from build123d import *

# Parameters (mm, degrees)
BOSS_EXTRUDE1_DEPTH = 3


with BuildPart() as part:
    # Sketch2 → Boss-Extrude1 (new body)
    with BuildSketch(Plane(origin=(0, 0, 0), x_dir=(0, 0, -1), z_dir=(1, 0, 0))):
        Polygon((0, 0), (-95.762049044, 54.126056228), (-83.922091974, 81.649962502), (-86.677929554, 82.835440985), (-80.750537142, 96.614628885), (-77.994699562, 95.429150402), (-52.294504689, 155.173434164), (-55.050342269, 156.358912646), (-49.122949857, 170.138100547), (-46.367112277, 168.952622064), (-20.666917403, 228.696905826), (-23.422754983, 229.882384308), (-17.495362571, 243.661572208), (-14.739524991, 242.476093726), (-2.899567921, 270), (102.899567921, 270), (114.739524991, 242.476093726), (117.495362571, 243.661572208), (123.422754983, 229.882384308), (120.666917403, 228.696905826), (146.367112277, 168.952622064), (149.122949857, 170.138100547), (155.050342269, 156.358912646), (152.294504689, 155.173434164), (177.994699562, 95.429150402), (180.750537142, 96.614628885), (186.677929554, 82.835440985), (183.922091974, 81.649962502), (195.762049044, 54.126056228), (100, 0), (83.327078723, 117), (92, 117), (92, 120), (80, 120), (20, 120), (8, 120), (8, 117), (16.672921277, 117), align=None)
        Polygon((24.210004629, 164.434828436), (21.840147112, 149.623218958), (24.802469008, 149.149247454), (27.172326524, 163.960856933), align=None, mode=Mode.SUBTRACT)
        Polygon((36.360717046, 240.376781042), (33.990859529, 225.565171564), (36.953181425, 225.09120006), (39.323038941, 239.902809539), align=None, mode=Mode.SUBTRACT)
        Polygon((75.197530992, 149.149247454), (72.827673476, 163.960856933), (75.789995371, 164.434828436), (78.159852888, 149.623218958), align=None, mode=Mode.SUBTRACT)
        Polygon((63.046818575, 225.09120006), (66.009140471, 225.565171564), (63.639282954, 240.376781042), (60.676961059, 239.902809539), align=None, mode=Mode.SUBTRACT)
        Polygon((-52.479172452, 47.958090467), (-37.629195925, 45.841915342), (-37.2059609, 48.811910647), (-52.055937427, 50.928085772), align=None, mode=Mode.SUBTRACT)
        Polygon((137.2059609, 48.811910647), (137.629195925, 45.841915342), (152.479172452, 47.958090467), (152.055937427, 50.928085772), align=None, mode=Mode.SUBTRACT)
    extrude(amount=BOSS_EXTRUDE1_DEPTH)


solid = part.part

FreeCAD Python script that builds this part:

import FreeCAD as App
import Part
import Sketcher
from FreeCAD import Vector
Q = App.Units.Quantity

doc = App.newDocument("Part")
body = doc.addObject("PartDesign::Body", "Body")

sketch1 = doc.addObject("Sketcher::SketchObject", "Sketch")
body.addObject(sketch1)
sketch1.AttachmentSupport = (doc.YZ_Plane, [""])
sketch1.MapMode = "FlatFace"
sketch1.addGeometry(Part.LineSegment(Vector(54.1, 95.8, 0), Vector(0, 0, 0)), False)
sketch1.addGeometry(Part.LineSegment(Vector(0, 0, 0), Vector(117, -16.7, 0)), False)
sketch1.addGeometry(Part.LineSegment(Vector(117, -16.7, 0), Vector(117, -8, 0)), False)
sketch1.addGeometry(Part.LineSegment(Vector(117, -8, 0), Vector(120, -8, 0)), False)
sketch1.addGeometry(Part.LineSegment(Vector(120, -8, 0), Vector(120, -92, 0)), False)
sketch1.addGeometry(Part.LineSegment(Vector(120, -92, 0), Vector(117, -92, 0)), False)
sketch1.addGeometry(Part.LineSegment(Vector(117, -92, 0), Vector(117, -83.3, 0)), False)
sketch1.addGeometry(Part.LineSegment(Vector(117, -83.3, 0), Vector(0, -100, 0)), False)
sketch1.addGeometry(Part.LineSegment(Vector(0, -100, 0), Vector(54.1, -195.8, 0)), False)
sketch1.addGeometry(Part.LineSegment(Vector(54.1, -195.8, 0), Vector(81.6, -183.9, 0)), False)
sketch1.addGeometry(Part.LineSegment(Vector(81.6, -183.9, 0), Vector(82.8, -186.7, 0)), False)
sketch1.addGeometry(Part.LineSegment(Vector(82.8, -186.7, 0), Vector(96.6, -180.8, 0)), False)
sketch1.addGeometry(Part.LineSegment(Vector(96.6, -180.8, 0), Vector(95.4, -178, 0)), False)
sketch1.addGeometry(Part.LineSegment(Vector(95.4, -178, 0), Vector(155.2, -152.3, 0)), False)
sketch1.addGeometry(Part.LineSegment(Vector(155.2, -152.3, 0), Vector(156.4, -155.1, 0)), False)
sketch1.addGeometry(Part.LineSegment(Vector(156.4, -155.1, 0), Vector(170.1, -149.1, 0)), False)
sketch1.addGeometry(Part.LineSegment(Vector(170.1, -149.1, 0), Vector(169, -146.4, 0)), False)
sketch1.addGeometry(Part.LineSegment(Vector(169, -146.4, 0), Vector(228.7, -120.7, 0)), False)
sketch1.addGeometry(Part.LineSegment(Vector(228.7, -120.7, 0), Vector(229.9, -123.4, 0)), False)
sketch1.addGeometry(Part.LineSegment(Vector(229.9, -123.4, 0), Vector(243.7, -117.5, 0)), False)
sketch1.addGeometry(Part.LineSegment(Vector(243.7, -117.5, 0), Vector(242.5, -114.7, 0)), False)
sketch1.addGeometry(Part.LineSegment(Vector(242.5, -114.7, 0), Vector(270, -102.9, 0)), False)
sketch1.addGeometry(Part.LineSegment(Vector(270, -102.9, 0), Vector(270, 2.9, 0)), False)
sketch1.addGeometry(Part.LineSegment(Vector(270, 2.9, 0), Vector(242.5, 14.7, 0)), False)
sketch1.addGeometry(Part.LineSegment(Vector(242.5, 14.7, 0), Vector(243.7, 17.5, 0)), False)
sketch1.addGeometry(Part.LineSegment(Vector(243.7, 17.5, 0), Vector(229.9, 23.4, 0)), False)
sketch1.addGeometry(Part.LineSegment(Vector(229.9, 23.4, 0), Vector(228.7, 20.7, 0)), False)
sketch1.addGeometry(Part.LineSegment(Vector(228.7, 20.7, 0), Vector(169, 46.4, 0)), False)
sketch1.addGeometry(Part.LineSegment(Vector(169, 46.4, 0), Vector(170.1, 49.1, 0)), False)
sketch1.addGeometry(Part.LineSegment(Vector(170.1, 49.1, 0), Vector(156.4, 55.1, 0)), False)
sketch1.addGeometry(Part.LineSegment(Vector(156.4, 55.1, 0), Vector(155.2, 52.3, 0)), False)
sketch1.addGeometry(Part.LineSegment(Vector(155.2, 52.3, 0), Vector(95.4, 78, 0)), False)
sketch1.addGeometry(Part.LineSegment(Vector(95.4, 78, 0), Vector(96.6, 80.8, 0)), False)
sketch1.addGeometry(Part.LineSegment(Vector(96.6, 80.8, 0), Vector(82.8, 86.7, 0)), False)
sketch1.addGeometry(Part.LineSegment(Vector(82.8, 86.7, 0), Vector(81.6, 83.9, 0)), False)
sketch1.addGeometry(Part.LineSegment(Vector(81.6, 83.9, 0), Vector(54.1, 95.8, 0)), False)
sketch1.addGeometry(Part.LineSegment(Vector(48.8, -137.2, 0), Vector(50.9, -152.1, 0)), False)
sketch1.addGeometry(Part.LineSegment(Vector(50.9, -152.1, 0), Vector(48, -152.5, 0)), False)
sketch1.addGeometry(Part.LineSegment(Vector(48, -152.5, 0), Vector(45.8, -137.6, 0)), False)
sketch1.addGeometry(Part.LineSegment(Vector(45.8, -137.6, 0), Vector(48.8, -137.2, 0)), False)
sketch1.addGeometry(Part.LineSegment(Vector(48, 52.5, 0), Vector(50.9, 52.1, 0)), False)
sketch1.addGeometry(Part.LineSegment(Vector(50.9, 52.1, 0), Vector(48.8, 37.2, 0)), False)
sketch1.addGeometry(Part.LineSegment(Vector(48.8, 37.2, 0), Vector(45.8, 37.6, 0)), False)
sketch1.addGeometry(Part.LineSegment(Vector(45.8, 37.6, 0), Vector(48, 52.5, 0)), False)
sketch1.addGeometry(Part.LineSegment(Vector(149.1, -75.2, 0), Vector(164, -72.8, 0)), False)
sketch1.addGeometry(Part.LineSegment(Vector(164, -72.8, 0), Vector(164.4, -75.8, 0)), False)
sketch1.addGeometry(Part.LineSegment(Vector(164.4, -75.8, 0), Vector(149.6, -78.2, 0)), False)
sketch1.addGeometry(Part.LineSegment(Vector(149.6, -78.2, 0), Vector(149.1, -75.2, 0)), False)
sketch1.addGeometry(Part.LineSegment(Vector(225.1, -63, 0), Vector(239.9, -60.7, 0)), False)
sketch1.addGeometry(Part.LineSegment(Vector(239.9, -60.7, 0), Vector(240.4, -63.6, 0)), False)
sketch1.addGeometry(Part.LineSegment(Vector(240.4, -63.6, 0), Vector(225.6, -66, 0)), False)
sketch1.addGeometry(Part.LineSegment(Vector(225.6, -66, 0), Vector(225.1, -63, 0)), False)
sketch1.addGeometry(Part.LineSegment(Vector(164.4, -24.2, 0), Vector(164, -27.2, 0)), False)
sketch1.addGeometry(Part.LineSegment(Vector(164, -27.2, 0), Vector(149.1, -24.8, 0)), False)
sketch1.addGeometry(Part.LineSegment(Vector(149.1, -24.8, 0), Vector(149.6, -21.8, 0)), False)
sketch1.addGeometry(Part.LineSegment(Vector(149.6, -21.8, 0), Vector(164.4, -24.2, 0)), False)
sketch1.addGeometry(Part.LineSegment(Vector(240.4, -36.4, 0), Vector(239.9, -39.3, 0)), False)
sketch1.addGeometry(Part.LineSegment(Vector(239.9, -39.3, 0), Vector(225.1, -37, 0)), False)
sketch1.addGeometry(Part.LineSegment(Vector(225.1, -37, 0), Vector(225.6, -34, 0)), False)
sketch1.addGeometry(Part.LineSegment(Vector(225.6, -34, 0), Vector(240.4, -36.4, 0)), False)
sketch1.addConstraint(Sketcher.Constraint("Coincident", 0, 2, 1, 1))
sketch1.addConstraint(Sketcher.Constraint("Coincident", 1, 2, 2, 1))
sketch1.addConstraint(Sketcher.Constraint("Coincident", 2, 2, 3, 1))
sketch1.addConstraint(Sketcher.Constraint("Coincident", 3, 2, 4, 1))
sketch1.addConstraint(Sketcher.Constraint("Coincident", 4, 2, 5, 1))
sketch1.addConstraint(Sketcher.Constraint("Coincident", 5, 2, 6, 1))
sketch1.addConstraint(Sketcher.Constraint("Coincident", 6, 2, 7, 1))
sketch1.addConstraint(Sketcher.Constraint("Coincident", 7, 2, 8, 1))
sketch1.addConstraint(Sketcher.Constraint("Coincident", 8, 2, 9, 1))
sketch1.addConstraint(Sketcher.Constraint("Coincident", 9, 2, 10, 1))
sketch1.addConstraint(Sketcher.Constraint("Coincident", 10, 2, 11, 1))
sketch1.addConstraint(Sketcher.Constraint("Coincident", 11, 2, 12, 1))
sketch1.addConstraint(Sketcher.Constraint("Coincident", 12, 2, 13, 1))
sketch1.addConstraint(Sketcher.Constraint("Coincident", 13, 2, 14, 1))
sketch1.addConstraint(Sketcher.Constraint("Coincident", 14, 2, 15, 1))
sketch1.addConstraint(Sketcher.Constraint("Coincident", 15, 2, 16, 1))
sketch1.addConstraint(Sketcher.Constraint("Coincident", 16, 2, 17, 1))
sketch1.addConstraint(Sketcher.Constraint("Coincident", 17, 2, 18, 1))
sketch1.addConstraint(Sketcher.Constraint("Coincident", 18, 2, 19, 1))
sketch1.addConstraint(Sketcher.Constraint("Coincident", 19, 2, 20, 1))
sketch1.addConstraint(Sketcher.Constraint("Coincident", 20, 2, 21, 1))
sketch1.addConstraint(Sketcher.Constraint("Coincident", 21, 2, 22, 1))
sketch1.addConstraint(Sketcher.Constraint("Coincident", 22, 2, 23, 1))
sketch1.addConstraint(Sketcher.Constraint("Coincident", 23, 2, 24, 1))
sketch1.addConstraint(Sketcher.Constraint("Coincident", 24, 2, 25, 1))
sketch1.addConstraint(Sketcher.Constraint("Coincident", 25, 2, 26, 1))
sketch1.addConstraint(Sketcher.Constraint("Coincident", 26, 2, 27, 1))
sketch1.addConstraint(Sketcher.Constraint("Coincident", 27, 2, 28, 1))
sketch1.addConstraint(Sketcher.Constraint("Coincident", 28, 2, 29, 1))
sketch1.addConstraint(Sketcher.Constraint("Coincident", 29, 2, 30, 1))
sketch1.addConstraint(Sketcher.Constraint("Coincident", 30, 2, 31, 1))
sketch1.addConstraint(Sketcher.Constraint("Coincident", 31, 2, 32, 1))
sketch1.addConstraint(Sketcher.Constraint("Coincident", 32, 2, 33, 1))
sketch1.addConstraint(Sketcher.Constraint("Coincident", 33, 2, 34, 1))
sketch1.addConstraint(Sketcher.Constraint("Coincident", 34, 2, 35, 1))
sketch1.addConstraint(Sketcher.Constraint("Coincident", 35, 2, 0, 1))
sketch1.addConstraint(Sketcher.Constraint("Coincident", 36, 2, 37, 1))
sketch1.addConstraint(Sketcher.Constraint("Coincident", 37, 2, 38, 1))
sketch1.addConstraint(Sketcher.Constraint("Coincident", 38, 2, 39, 1))
sketch1.addConstraint(Sketcher.Constraint("Coincident", 39, 2, 36, 1))
sketch1.addConstraint(Sketcher.Constraint("Coincident", 40, 2, 41, 1))
sketch1.addConstraint(Sketcher.Constraint("Coincident", 41, 2, 42, 1))
sketch1.addConstraint(Sketcher.Constraint("Coincident", 42, 2, 43, 1))
sketch1.addConstraint(Sketcher.Constraint("Coincident", 43, 2, 40, 1))
sketch1.addConstraint(Sketcher.Constraint("Coincident", 44, 2, 45, 1))
sketch1.addConstraint(Sketcher.Constraint("Coincident", 45, 2, 46, 1))
sketch1.addConstraint(Sketcher.Constraint("Coincident", 46, 2, 47, 1))
sketch1.addConstraint(Sketcher.Constraint("Coincident", 47, 2, 44, 1))
sketch1.addConstraint(Sketcher.Constraint("Coincident", 48, 2, 49, 1))
sketch1.addConstraint(Sketcher.Constraint("Coincident", 49, 2, 50, 1))
sketch1.addConstraint(Sketcher.Constraint("Coincident", 50, 2, 51, 1))
sketch1.addConstraint(Sketcher.Constraint("Coincident", 51, 2, 48, 1))
sketch1.addConstraint(Sketcher.Constraint("Coincident", 52, 2, 53, 1))
sketch1.addConstraint(Sketcher.Constraint("Coincident", 53, 2, 54, 1))
sketch1.addConstraint(Sketcher.Constraint("Coincident", 54, 2, 55, 1))
sketch1.addConstraint(Sketcher.Constraint("Coincident", 55, 2, 52, 1))
sketch1.addConstraint(Sketcher.Constraint("Coincident", 56, 2, 57, 1))
sketch1.addConstraint(Sketcher.Constraint("Coincident", 57, 2, 58, 1))
sketch1.addConstraint(Sketcher.Constraint("Coincident", 58, 2, 59, 1))
sketch1.addConstraint(Sketcher.Constraint("Coincident", 59, 2, 56, 1))
sketch1.addConstraint(Sketcher.Constraint("Vertical", 2))
sketch1.addConstraint(Sketcher.Constraint("Horizontal", 3))
sketch1.addConstraint(Sketcher.Constraint("Vertical", 4))
sketch1.addConstraint(Sketcher.Constraint("Horizontal", 5))
sketch1.addConstraint(Sketcher.Constraint("Vertical", 6))
sketch1.addConstraint(Sketcher.Constraint("Vertical", 22))
sketch1.addConstraint(Sketcher.Constraint("Coincident", 0, 2, -1, 1))
sketch1.addConstraint(Sketcher.Constraint("PointOnObject", 7, 2, -2))
sketch1.addConstraint(Sketcher.Constraint("Perpendicular", 9, 10))
sketch1.addConstraint(Sketcher.Constraint("Perpendicular", 10, 11))
sketch1.addConstraint(Sketcher.Constraint("Perpendicular", 11, 12))
sketch1.addConstraint(Sketcher.Constraint("Perpendicular", 12, 13))
sketch1.addConstraint(Sketcher.Constraint("Perpendicular", 13, 14))
sketch1.addConstraint(Sketcher.Constraint("Perpendicular", 14, 15))
sketch1.addConstraint(Sketcher.Constraint("Perpendicular", 15, 16))
sketch1.addConstraint(Sketcher.Constraint("Perpendicular", 16, 17))
sketch1.addConstraint(Sketcher.Constraint("Perpendicular", 17, 18))
sketch1.addConstraint(Sketcher.Constraint("Perpendicular", 18, 19))
sketch1.addConstraint(Sketcher.Constraint("Perpendicular", 19, 20))
sketch1.addConstraint(Sketcher.Constraint("Perpendicular", 20, 21))
sketch1.addConstraint(Sketcher.Constraint("Perpendicular", 23, 24))
sketch1.addConstraint(Sketcher.Constraint("Perpendicular", 24, 25))
sketch1.addConstraint(Sketcher.Constraint("Perpendicular", 25, 26))
sketch1.addConstraint(Sketcher.Constraint("Perpendicular", 26, 27))
sketch1.addConstraint(Sketcher.Constraint("Perpendicular", 27, 28))
sketch1.addConstraint(Sketcher.Constraint("Perpendicular", 28, 29))
sketch1.addConstraint(Sketcher.Constraint("Perpendicular", 29, 30))
sketch1.addConstraint(Sketcher.Constraint("Perpendicular", 30, 31))
sketch1.addConstraint(Sketcher.Constraint("Perpendicular", 31, 32))
sketch1.addConstraint(Sketcher.Constraint("Perpendicular", 32, 33))
sketch1.addConstraint(Sketcher.Constraint("Perpendicular", 33, 34))
sketch1.addConstraint(Sketcher.Constraint("Perpendicular", 34, 35))
sketch1.addConstraint(Sketcher.Constraint("Perpendicular", 7, 36))
sketch1.addConstraint(Sketcher.Constraint("Perpendicular", 36, 37))
sketch1.addConstraint(Sketcher.Constraint("Perpendicular", 37, 38))
sketch1.addConstraint(Sketcher.Constraint("Perpendicular", 38, 39))
sketch1.addConstraint(Sketcher.Constraint("Parallel", 1, 40))
sketch1.addConstraint(Sketcher.Constraint("Perpendicular", 40, 41))
sketch1.addConstraint(Sketcher.Constraint("Perpendicular", 41, 42))
sketch1.addConstraint(Sketcher.Constraint("Perpendicular", 42, 43))
sketch1.addConstraint(Sketcher.Constraint("Perpendicular", 44, 45))
sketch1.addConstraint(Sketcher.Constraint("Perpendicular", 45, 46))
sketch1.addConstraint(Sketcher.Constraint("Perpendicular", 46, 47))
sketch1.addConstraint(Sketcher.Constraint("Perpendicular", 47, 48))
sketch1.addConstraint(Sketcher.Constraint("Perpendicular", 48, 49))
sketch1.addConstraint(Sketcher.Constraint("Perpendicular", 49, 50))
sketch1.addConstraint(Sketcher.Constraint("Perpendicular", 50, 51))
sketch1.addConstraint(Sketcher.Constraint("Perpendicular", 52, 53))
sketch1.addConstraint(Sketcher.Constraint("Perpendicular", 53, 54))
sketch1.addConstraint(Sketcher.Constraint("Perpendicular", 54, 55))
sketch1.addConstraint(Sketcher.Constraint("Perpendicular", 55, 56))
sketch1.addConstraint(Sketcher.Constraint("Perpendicular", 56, 57))
sketch1.addConstraint(Sketcher.Constraint("Perpendicular", 57, 58))
sketch1.addConstraint(Sketcher.Constraint("Perpendicular", 58, 59))
sketch1.addConstraint(Sketcher.Constraint("Vertical", 2, 2, 5, 2))
sketch1.addConstraint(Sketcher.Constraint("Vertical", 20, 2, 23, 2))
sketch1.addConstraint(Sketcher.Constraint("Vertical", 19, 2, 24, 2))
sketch1.addConstraint(Sketcher.Constraint("Vertical", 18, 2, 25, 2))
sketch1.addConstraint(Sketcher.Constraint("Vertical", 17, 2, 26, 2))
sketch1.addConstraint(Sketcher.Constraint("Vertical", 16, 2, 27, 2))
sketch1.addConstraint(Sketcher.Constraint("Vertical", 15, 2, 28, 2))
sketch1.addConstraint(Sketcher.Constraint("Vertical", 14, 2, 29, 2))
sketch1.addConstraint(Sketcher.Constraint("Vertical", 13, 2, 30, 2))
sketch1.addConstraint(Sketcher.Constraint("Vertical", 12, 2, 31, 2))
sketch1.addConstraint(Sketcher.Constraint("Vertical", 11, 2, 32, 2))
sketch1.addConstraint(Sketcher.Constraint("Vertical", 10, 2, 33, 2))
sketch1.addConstraint(Sketcher.Constraint("Vertical", 9, 2, 34, 2))
sketch1.addConstraint(Sketcher.Constraint("Vertical", 8, 2, 35, 2))
sketch1.addConstraint(Sketcher.Constraint("Vertical", 36, 2, 40, 2))
sketch1.addConstraint(Sketcher.Constraint("Vertical", 39, 2, 41, 2))
sketch1.addConstraint(Sketcher.Constraint("Vertical", 38, 2, 42, 2))
sketch1.addConstraint(Sketcher.Constraint("Vertical", 44, 2, 52, 2))
sketch1.addConstraint(Sketcher.Constraint("Vertical", 47, 2, 53, 2))
sketch1.addConstraint(Sketcher.Constraint("Vertical", 46, 2, 54, 2))
sketch1.addConstraint(Sketcher.Constraint("Vertical", 48, 2, 56, 2))
sketch1.addConstraint(Sketcher.Constraint("Vertical", 51, 2, 57, 2))
sketch1.addConstraint(Sketcher.Constraint("Vertical", 50, 2, 58, 2))
sketch1.addConstraint(Sketcher.Constraint("Equal", 2, 6))
sketch1.addConstraint(Sketcher.Constraint("Equal", 1, 7))
sketch1.addConstraint(Sketcher.Constraint("Equal", 0, 8))
sketch1.addConstraint(Sketcher.Constraint("Equal", 10, 12))
sketch1.addConstraint(Sketcher.Constraint("Equal", 12, 14))
sketch1.addConstraint(Sketcher.Constraint("Equal", 11, 15))
sketch1.addConstraint(Sketcher.Constraint("Equal", 14, 16))
sketch1.addConstraint(Sketcher.Constraint("Equal", 13, 17))
sketch1.addConstraint(Sketcher.Constraint("Equal", 16, 18))
sketch1.addConstraint(Sketcher.Constraint("Equal", 15, 19))
sketch1.addConstraint(Sketcher.Constraint("Equal", 18, 20))
sketch1.addConstraint(Sketcher.Constraint("Equal", 9, 21))
sketch1.addConstraint(Sketcher.Constraint("Equal", 21, 23))
sketch1.addConstraint(Sketcher.Constraint("Equal", 33, 36))
sketch1.addConstraint(Sketcher.Constraint("Equal", 34, 37))
sketch1.addConstraint(Sketcher.Constraint("Equal", 43, 44))
sketch1.addConstraint(Sketcher.Constraint("Equal", 42, 45))
sketch1.addConstraint(Sketcher.Constraint("Equal", 46, 48))
sketch1.addConstraint(Sketcher.Constraint("Equal", 47, 49))
sketch1.addConstraint(Sketcher.Constraint("Equal", 51, 52))
sketch1.addConstraint(Sketcher.Constraint("DistanceX", 3, 1, 3, 2, Q("3 mm")))
sketch1.addConstraint(Sketcher.Constraint("DistanceY", 4, 2, 4, 1, Q("84 mm")))
sketch1.addConstraint(Sketcher.Constraint("Distance", 0, Q("110 mm")))
sketch1.addConstraint(Sketcher.Constraint("Distance", 10, Q("3 mm")))
sketch1.addConstraint(Sketcher.Constraint("Distance", 11, Q("15 mm")))
sketch1.addConstraint(Sketcher.Constraint("DistanceX", -1, 1, 1, 2, Q("117 mm")))
sketch1.addConstraint(Sketcher.Constraint("DistanceY", 2, 2, -1, 1, Q("8 mm")))
sketch1.addConstraint(Sketcher.Constraint("DistanceX", -1, 1, 21, 2, Q("270 mm")))
sketch1.addConstraint(Sketcher.Constraint("DistanceY", 2, 1, 2, 2, Q("8.672921 mm")))
sketch1.addConstraint(Sketcher.Constraint("DistanceY", 12, 2, -1, 1, Q("177.9947 mm")))
sketch1.addConstraint(Sketcher.Constraint("DistanceX", -1, 1, 15, 2, Q("170.138101 mm")))
sketch1.addConstraint(Sketcher.Constraint("DistanceX", -1, 1, 51, 2, Q("225.0912 mm")))
sketch1.addConstraint(Sketcher.Constraint("DistanceY", 11, 2, 36, 2, Q("28.6946 mm")))
sketch1.addConstraint(Sketcher.Constraint("DistanceY", 40, 2, 32, 2, Q("28.6946 mm")))
sketch1.addConstraint(Sketcher.Constraint("DistanceY", 19, 2, 48, 2, Q("56.818402 mm")))
sketch1.addConstraint(Sketcher.Constraint("DistanceX", 50, 2, 19, 2, Q("18.096401 mm")))
sketch1.addConstraint(Sketcher.Constraint("DistanceY", 50, 2, 56, 2, Q("26.686102 mm")))
sketch1.addConstraint(Sketcher.Constraint("DistanceY", 22, 1, 22, 2, Q("105.799136 mm")))
sketch1.addConstraint(Sketcher.Constraint("DistanceX", -1, 1, 37, 2, Q("47.95809 mm")))
sketch1.addConstraint(Sketcher.Constraint("DistanceX", -1, 1, 45, 2, Q("164.434828 mm")))
sketch1.addConstraint(Sketcher.Constraint("DistanceY", 47, 2, -1, 1, Q("75.197531 mm")))
sketch1.addConstraint(Sketcher.Constraint("DistanceY", 53, 2, -1, 1, Q("24.802469 mm")))
pad1 = doc.addObject("PartDesign::Pad", "Pad")
body.addObject(pad1)
pad1.Profile = sketch1
pad1.Length = 3

doc.recompute()
